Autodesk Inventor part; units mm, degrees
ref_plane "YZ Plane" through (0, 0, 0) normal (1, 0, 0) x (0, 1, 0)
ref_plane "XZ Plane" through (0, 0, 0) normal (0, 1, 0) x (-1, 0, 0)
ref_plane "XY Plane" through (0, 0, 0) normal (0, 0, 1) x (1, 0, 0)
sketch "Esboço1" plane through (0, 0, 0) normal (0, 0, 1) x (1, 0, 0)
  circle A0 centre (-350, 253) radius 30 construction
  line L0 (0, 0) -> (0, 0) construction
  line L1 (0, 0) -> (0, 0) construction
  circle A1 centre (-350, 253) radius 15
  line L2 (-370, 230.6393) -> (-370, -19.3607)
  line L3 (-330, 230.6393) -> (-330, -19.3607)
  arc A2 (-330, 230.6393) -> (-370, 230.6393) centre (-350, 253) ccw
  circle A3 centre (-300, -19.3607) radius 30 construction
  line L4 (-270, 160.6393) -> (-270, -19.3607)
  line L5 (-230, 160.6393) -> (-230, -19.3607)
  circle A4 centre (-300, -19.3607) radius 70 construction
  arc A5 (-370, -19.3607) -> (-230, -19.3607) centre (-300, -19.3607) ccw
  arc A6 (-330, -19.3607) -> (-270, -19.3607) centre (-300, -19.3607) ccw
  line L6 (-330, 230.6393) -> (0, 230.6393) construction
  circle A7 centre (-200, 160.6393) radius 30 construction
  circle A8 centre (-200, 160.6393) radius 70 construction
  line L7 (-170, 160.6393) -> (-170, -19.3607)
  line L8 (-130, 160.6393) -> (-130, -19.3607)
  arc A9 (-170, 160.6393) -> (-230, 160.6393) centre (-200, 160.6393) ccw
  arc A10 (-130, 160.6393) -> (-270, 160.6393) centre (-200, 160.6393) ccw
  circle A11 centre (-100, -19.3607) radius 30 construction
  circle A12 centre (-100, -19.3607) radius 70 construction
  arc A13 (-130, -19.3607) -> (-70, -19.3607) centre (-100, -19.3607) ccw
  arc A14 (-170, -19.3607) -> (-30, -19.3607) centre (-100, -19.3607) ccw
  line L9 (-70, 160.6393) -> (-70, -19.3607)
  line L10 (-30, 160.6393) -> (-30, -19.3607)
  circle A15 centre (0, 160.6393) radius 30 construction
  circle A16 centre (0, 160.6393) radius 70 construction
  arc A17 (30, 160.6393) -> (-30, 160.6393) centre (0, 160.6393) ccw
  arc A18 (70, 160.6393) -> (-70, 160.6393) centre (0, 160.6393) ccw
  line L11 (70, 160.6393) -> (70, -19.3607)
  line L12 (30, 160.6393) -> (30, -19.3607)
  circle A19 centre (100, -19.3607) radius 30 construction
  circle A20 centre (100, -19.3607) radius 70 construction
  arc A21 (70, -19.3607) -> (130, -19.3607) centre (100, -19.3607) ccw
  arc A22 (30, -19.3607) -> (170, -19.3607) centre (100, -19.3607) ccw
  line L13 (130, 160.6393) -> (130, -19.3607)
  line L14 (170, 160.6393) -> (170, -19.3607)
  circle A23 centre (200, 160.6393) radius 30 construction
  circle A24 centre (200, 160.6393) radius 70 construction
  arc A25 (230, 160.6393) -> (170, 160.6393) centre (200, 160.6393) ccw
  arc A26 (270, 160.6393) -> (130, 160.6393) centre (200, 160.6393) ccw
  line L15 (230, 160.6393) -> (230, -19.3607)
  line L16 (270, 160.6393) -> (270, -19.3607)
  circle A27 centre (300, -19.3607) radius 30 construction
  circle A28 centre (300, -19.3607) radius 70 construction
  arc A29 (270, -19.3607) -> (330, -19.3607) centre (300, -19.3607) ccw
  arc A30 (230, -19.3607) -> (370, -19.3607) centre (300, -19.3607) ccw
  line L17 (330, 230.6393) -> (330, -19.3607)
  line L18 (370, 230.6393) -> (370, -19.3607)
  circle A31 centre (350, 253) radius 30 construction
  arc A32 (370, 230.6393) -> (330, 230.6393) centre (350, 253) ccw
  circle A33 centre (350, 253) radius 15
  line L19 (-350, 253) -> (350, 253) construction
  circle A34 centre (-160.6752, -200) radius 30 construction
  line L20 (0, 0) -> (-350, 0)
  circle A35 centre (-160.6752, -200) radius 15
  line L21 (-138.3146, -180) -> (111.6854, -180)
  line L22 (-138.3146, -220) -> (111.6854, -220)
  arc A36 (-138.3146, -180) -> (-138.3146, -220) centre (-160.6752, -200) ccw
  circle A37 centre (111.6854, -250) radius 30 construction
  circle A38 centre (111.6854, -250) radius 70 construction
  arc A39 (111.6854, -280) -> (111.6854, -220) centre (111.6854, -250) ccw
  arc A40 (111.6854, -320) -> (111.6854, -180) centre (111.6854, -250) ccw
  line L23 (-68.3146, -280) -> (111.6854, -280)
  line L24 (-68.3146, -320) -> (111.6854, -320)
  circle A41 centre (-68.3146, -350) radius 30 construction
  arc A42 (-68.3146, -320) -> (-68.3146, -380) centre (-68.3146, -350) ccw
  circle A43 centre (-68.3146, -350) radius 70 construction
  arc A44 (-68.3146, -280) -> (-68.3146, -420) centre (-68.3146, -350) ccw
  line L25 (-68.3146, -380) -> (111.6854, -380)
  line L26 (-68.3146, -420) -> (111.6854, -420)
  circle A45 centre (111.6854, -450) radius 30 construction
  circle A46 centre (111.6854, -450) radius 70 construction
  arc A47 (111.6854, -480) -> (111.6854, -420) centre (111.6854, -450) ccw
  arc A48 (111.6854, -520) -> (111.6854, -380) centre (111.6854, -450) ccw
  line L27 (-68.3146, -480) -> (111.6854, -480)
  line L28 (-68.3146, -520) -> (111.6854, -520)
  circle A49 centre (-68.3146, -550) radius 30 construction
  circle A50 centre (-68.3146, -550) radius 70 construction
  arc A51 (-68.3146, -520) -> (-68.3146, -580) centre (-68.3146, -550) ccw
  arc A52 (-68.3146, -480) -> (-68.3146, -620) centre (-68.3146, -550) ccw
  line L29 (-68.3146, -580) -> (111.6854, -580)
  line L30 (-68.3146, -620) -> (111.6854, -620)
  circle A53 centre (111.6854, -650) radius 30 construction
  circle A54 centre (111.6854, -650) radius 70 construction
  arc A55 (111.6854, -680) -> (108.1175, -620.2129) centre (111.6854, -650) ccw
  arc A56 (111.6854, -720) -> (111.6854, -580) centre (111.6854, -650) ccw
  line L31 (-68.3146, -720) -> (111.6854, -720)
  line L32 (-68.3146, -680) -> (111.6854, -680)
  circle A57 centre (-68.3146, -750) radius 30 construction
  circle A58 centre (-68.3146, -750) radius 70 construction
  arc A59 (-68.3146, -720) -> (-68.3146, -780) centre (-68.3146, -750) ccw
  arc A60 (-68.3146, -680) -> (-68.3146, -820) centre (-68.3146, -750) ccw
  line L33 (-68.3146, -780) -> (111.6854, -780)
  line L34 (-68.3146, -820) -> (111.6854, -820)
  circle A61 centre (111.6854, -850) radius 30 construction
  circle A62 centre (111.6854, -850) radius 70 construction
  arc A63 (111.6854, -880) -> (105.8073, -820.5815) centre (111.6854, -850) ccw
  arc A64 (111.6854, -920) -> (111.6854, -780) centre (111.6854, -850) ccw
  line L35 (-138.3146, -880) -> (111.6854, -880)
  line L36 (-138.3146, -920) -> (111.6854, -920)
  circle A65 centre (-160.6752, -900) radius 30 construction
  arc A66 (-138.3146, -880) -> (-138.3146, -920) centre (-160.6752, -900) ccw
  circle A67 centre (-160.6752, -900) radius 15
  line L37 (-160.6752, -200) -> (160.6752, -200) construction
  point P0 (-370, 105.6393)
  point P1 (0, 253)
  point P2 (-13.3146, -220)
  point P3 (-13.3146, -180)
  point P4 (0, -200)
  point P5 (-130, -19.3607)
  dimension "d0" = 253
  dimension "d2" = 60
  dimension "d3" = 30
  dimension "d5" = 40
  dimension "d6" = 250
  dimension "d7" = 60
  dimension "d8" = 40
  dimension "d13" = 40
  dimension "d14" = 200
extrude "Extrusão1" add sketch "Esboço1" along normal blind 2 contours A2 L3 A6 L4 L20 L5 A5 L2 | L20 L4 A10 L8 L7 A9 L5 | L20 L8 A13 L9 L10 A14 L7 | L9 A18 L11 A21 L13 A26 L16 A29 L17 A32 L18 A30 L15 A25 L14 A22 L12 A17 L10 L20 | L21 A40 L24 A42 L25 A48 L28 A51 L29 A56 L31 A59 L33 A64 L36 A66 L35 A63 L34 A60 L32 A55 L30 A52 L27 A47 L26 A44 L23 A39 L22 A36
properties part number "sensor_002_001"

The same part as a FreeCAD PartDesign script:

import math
import FreeCAD as App
import Part
import Sketcher

V = App.Vector

doc = App.newDocument("Part")
body = doc.addObject("PartDesign::Body", "Body")
body.AllowCompound = True

# Sketch on XY plane
sketch1 = doc.addObject("Sketcher::SketchObject", "Sketch")
body.addObject(sketch1)
sketch1.AttachmentSupport = (doc.XY_Plane, [""])
sketch1.MapMode = "FlatFace"
sketch1.addGeometry([
    Part.ArcOfCircle(Part.Circle(V(-350, 253, 0), V(0, 0, 1), 30), math.radians(-48), math.radians(228)),  # 0
    Part.LineSegment(V(-370, 231, 0), V(-370, -19, 0)),  # 1
    Part.ArcOfCircle(Part.Circle(V(-300, -19, 0), V(0, 0, 1), 70), math.radians(180), math.radians(360)),  # 2
    Part.LineSegment(V(-230, -19, 0), V(-230, 161, 0)),  # 3
    Part.ArcOfCircle(Part.Circle(V(-200, 161, 0), V(0, 0, 1), 30), math.radians(0), math.radians(180)),  # 4
    Part.LineSegment(V(-170, 161, 0), V(-170, -19, 0)),  # 5
    Part.ArcOfCircle(Part.Circle(V(-100, -19, 0), V(0, 0, 1), 70), math.radians(180), math.radians(360)),  # 6
    Part.LineSegment(V(-30, -19, 0), V(-30, 161, 0)),  # 7
    Part.ArcOfCircle(Part.Circle(V(0, 161, 0), V(0, 0, 1), 30), math.radians(0), math.radians(180)),  # 8
    Part.LineSegment(V(30, 161, 0), V(30, -19, 0)),  # 9
    Part.ArcOfCircle(Part.Circle(V(100, -19, 0), V(0, 0, 1), 70), math.radians(180), math.radians(360)),  # 10
    Part.LineSegment(V(170, -19, 0), V(170, 161, 0)),  # 11
    Part.ArcOfCircle(Part.Circle(V(200, 161, 0), V(0, 0, 1), 30), math.radians(0), math.radians(180)),  # 12
    Part.LineSegment(V(230, 161, 0), V(230, -19, 0)),  # 13
    Part.ArcOfCircle(Part.Circle(V(300, -19, 0), V(0, 0, 1), 70), math.radians(180), math.radians(360)),  # 14
    Part.LineSegment(V(370, -19, 0), V(370, 231, 0)),  # 15
    Part.ArcOfCircle(Part.Circle(V(350, 253, 0), V(0, 0, 1), 30), math.radians(-48), math.radians(228)),  # 16
    Part.LineSegment(V(330, 231, 0), V(330, -19, 0)),  # 17
    Part.ArcOfCircle(Part.Circle(V(300, -19, 0), V(0, 0, 1), 30), math.radians(180), math.radians(360)),  # 18
    Part.LineSegment(V(270, -19, 0), V(270, 161, 0)),  # 19
    Part.ArcOfCircle(Part.Circle(V(200, 161, 0), V(0, 0, 1), 70), math.radians(0), math.radians(180)),  # 20
    Part.LineSegment(V(130, 161, 0), V(130, -19, 0)),  # 21
    Part.ArcOfCircle(Part.Circle(V(100, -19, 0), V(0, 0, 1), 30), math.radians(180), math.radians(360)),  # 22
    Part.LineSegment(V(70, -19, 0), V(70, 161, 0)),  # 23
    Part.ArcOfCircle(Part.Circle(V(0, 161, 0), V(0, 0, 1), 70), math.radians(0), math.radians(180)),  # 24
    Part.LineSegment(V(-70, 161, 0), V(-70, -19, 0)),  # 25
    Part.ArcOfCircle(Part.Circle(V(-100, -19, 0), V(0, 0, 1), 30), math.radians(180), math.radians(360)),  # 26
    Part.LineSegment(V(-130, -19, 0), V(-130, 161, 0)),  # 27
    Part.ArcOfCircle(Part.Circle(V(-200, 161, 0), V(0, 0, 1), 70), math.radians(0), math.radians(180)),  # 28
    Part.LineSegment(V(-270, 161, 0), V(-270, -19, 0)),  # 29
    Part.ArcOfCircle(Part.Circle(V(-300, -19, 0), V(0, 0, 1), 30), math.radians(180), math.radians(360)),  # 30
    Part.LineSegment(V(-330, -19, 0), V(-330, 231, 0)),  # 31
    Part.Circle(V(-350, 253, 0), V(0, 0, 1), 15),  # 32
    Part.Circle(V(350, 253, 0), V(0, 0, 1), 15),  # 33
    Part.LineSegment(V(112, -180, 0), V(-138, -180, 0)),  # 34
    Part.ArcOfCircle(Part.Circle(V(-161, -200, 0), V(0, 0, 1), 30), math.radians(42), math.radians(318)),  # 35
    Part.LineSegment(V(-138, -220, 0), V(112, -220, 0)),  # 36
    Part.ArcOfCircle(Part.Circle(V(112, -250, 0), V(0, 0, 1), 30), math.radians(-90), math.radians(90)),  # 37
    Part.LineSegment(V(112, -280, 0), V(-68, -280, 0)),  # 38
    Part.ArcOfCircle(Part.Circle(V(-68, -350, 0), V(0, 0, 1), 70), math.radians(90), math.radians(270)),  # 39
    Part.LineSegment(V(-68, -420, 0), V(112, -420, 0)),  # 40
    Part.ArcOfCircle(Part.Circle(V(112, -450, 0), V(0, 0, 1), 30), math.radians(-90), math.radians(90)),  # 41
    Part.LineSegment(V(112, -480, 0), V(-68, -480, 0)),  # 42
    Part.ArcOfCircle(Part.Circle(V(-68, -550, 0), V(0, 0, 1), 70), math.radians(90), math.radians(270)),  # 43
    Part.LineSegment(V(-68, -620, 0), V(112, -620, 0)),  # 44
    Part.ArcOfCircle(Part.Circle(V(112, -650, 0), V(0, 0, 1), 30), math.radians(-90), math.radians(90)),  # 45
    Part.LineSegment(V(112, -680, 0), V(-68, -680, 0)),  # 46
    Part.ArcOfCircle(Part.Circle(V(-68, -750, 0), V(0, 0, 1), 70), math.radians(90), math.radians(270)),  # 47
    Part.LineSegment(V(-68, -820, 0), V(112, -820, 0)),  # 48
    Part.ArcOfCircle(Part.Circle(V(112, -850, 0), V(0, 0, 1), 30), math.radians(-90), math.radians(90)),  # 49
    Part.LineSegment(V(112, -880, 0), V(-138, -880, 0)),  # 50
    Part.ArcOfCircle(Part.Circle(V(-161, -900, 0), V(0, 0, 1), 30), math.radians(42), math.radians(318)),  # 51
    Part.LineSegment(V(-138, -920, 0), V(112, -920, 0)),  # 52
    Part.ArcOfCircle(Part.Circle(V(112, -850, 0), V(0, 0, 1), 70), math.radians(-90), math.radians(90)),  # 53
    Part.LineSegment(V(112, -780, 0), V(-68, -780, 0)),  # 54
    Part.ArcOfCircle(Part.Circle(V(-68, -750, 0), V(0, 0, 1), 30), math.radians(90), math.radians(270)),  # 55
    Part.LineSegment(V(-68, -720, 0), V(112, -720, 0)),  # 56
    Part.ArcOfCircle(Part.Circle(V(112, -650, 0), V(0, 0, 1), 70), math.radians(-90), math.radians(90)),  # 57
    Part.LineSegment(V(112, -580, 0), V(-68, -580, 0)),  # 58
    Part.ArcOfCircle(Part.Circle(V(-68, -550, 0), V(0, 0, 1), 30), math.radians(90), math.radians(270)),  # 59
    Part.LineSegment(V(-68, -520, 0), V(112, -520, 0)),  # 60
    Part.ArcOfCircle(Part.Circle(V(112, -450, 0), V(0, 0, 1), 70), math.radians(-90), math.radians(90)),  # 61
    Part.LineSegment(V(112, -380, 0), V(-68, -380, 0)),  # 62
    Part.ArcOfCircle(Part.Circle(V(-68, -350, 0), V(0, 0, 1), 30), math.radians(90), math.radians(270)),  # 63
    Part.LineSegment(V(-68, -320, 0), V(112, -320, 0)),  # 64
    Part.ArcOfCircle(Part.Circle(V(112, -250, 0), V(0, 0, 1), 70), math.radians(-90), math.radians(90)),  # 65
    Part.Circle(V(-161, -900, 0), V(0, 0, 1), 15),  # 66
    Part.Circle(V(-161, -200, 0), V(0, 0, 1), 15),  # 67
], False)
sketch1.addConstraint([
    Sketcher.Constraint("Coincident", 0, 2, 1, 1),
    Sketcher.Constraint("Tangent", 1, 2, 2, 1),
    Sketcher.Constraint("Tangent", 2, 2, 3, 1),
    Sketcher.Constraint("Tangent", 3, 2, 4, 2),
    Sketcher.Constraint("Tangent", 4, 1, 5, 1),
    Sketcher.Constraint("Tangent", 5, 2, 6, 1),
    Sketcher.Constraint("Tangent", 6, 2, 7, 1),
    Sketcher.Constraint("Tangent", 7, 2, 8, 2),
    Sketcher.Constraint("Tangent", 8, 1, 9, 1),
    Sketcher.Constraint("Tangent", 9, 2, 10, 1),
    Sketcher.Constraint("Tangent", 10, 2, 11, 1),
    Sketcher.Constraint("Tangent", 11, 2, 12, 2),
    Sketcher.Constraint("Tangent", 12, 1, 13, 1),
    Sketcher.Constraint("Tangent", 13, 2, 14, 1),
    Sketcher.Constraint("Tangent", 14, 2, 15, 1),
    Sketcher.Constraint("Coincident", 15, 2, 16, 1),
    Sketcher.Constraint("Coincident", 16, 2, 17, 1),
    Sketcher.Constraint("Tangent", 17, 2, 18, 2),
    Sketcher.Constraint("Tangent", 18, 1, 19, 1),
    Sketcher.Constraint("Tangent", 19, 2, 20, 1),
    Sketcher.Constraint("Tangent", 20, 2, 21, 1),
    Sketcher.Constraint("Tangent", 21, 2, 22, 2),
    Sketcher.Constraint("Tangent", 22, 1, 23, 1),
    Sketcher.Constraint("Tangent", 23, 2, 24, 1),
    Sketcher.Constraint("Tangent", 24, 2, 25, 1),
    Sketcher.Constraint("Tangent", 25, 2, 26, 2),
    Sketcher.Constraint("Tangent", 26, 1, 27, 1),
    Sketcher.Constraint("Tangent", 27, 2, 28, 1),
    Sketcher.Constraint("Tangent", 28, 2, 29, 1),
    Sketcher.Constraint("Tangent", 29, 2, 30, 2),
    Sketcher.Constraint("Tangent", 30, 1, 31, 1),
    Sketcher.Constraint("Coincident", 31, 2, 0, 1),
    Sketcher.Constraint("Coincident", 34, 2, 35, 1),
    Sketcher.Constraint("Coincident", 35, 2, 36, 1),
    Sketcher.Constraint("Tangent", 36, 2, 37, 2),
    Sketcher.Constraint("Tangent", 37, 1, 38, 1),
    Sketcher.Constraint("Tangent", 38, 2, 39, 1),
    Sketcher.Constraint("Tangent", 39, 2, 40, 1),
    Sketcher.Constraint("Tangent", 40, 2, 41, 2),
    Sketcher.Constraint("Tangent", 41, 1, 42, 1),
    Sketcher.Constraint("Tangent", 42, 2, 43, 1),
    Sketcher.Constraint("Tangent", 43, 2, 44, 1),
    Sketcher.Constraint("Tangent", 44, 2, 45, 2),
    Sketcher.Constraint("Tangent", 45, 1, 46, 1),
    Sketcher.Constraint("Tangent", 46, 2, 47, 1),
    Sketcher.Constraint("Tangent", 47, 2, 48, 1),
    Sketcher.Constraint("Tangent", 48, 2, 49, 2),
    Sketcher.Constraint("Tangent", 49, 1, 50, 1),
    Sketcher.Constraint("Coincident", 50, 2, 51, 1),
    Sketcher.Constraint("Coincident", 51, 2, 52, 1),
    Sketcher.Constraint("Tangent", 52, 2, 53, 1),
    Sketcher.Constraint("Tangent", 53, 2, 54, 1),
    Sketcher.Constraint("Tangent", 54, 2, 55, 2),
    Sketcher.Constraint("Tangent", 55, 1, 56, 1),
    Sketcher.Constraint("Tangent", 56, 2, 57, 1),
    Sketcher.Constraint("Tangent", 57, 2, 58, 1),
    Sketcher.Constraint("Tangent", 58, 2, 59, 2),
    Sketcher.Constraint("Tangent", 59, 1, 60, 1),
    Sketcher.Constraint("Tangent", 60, 2, 61, 1),
    Sketcher.Constraint("Tangent", 61, 2, 62, 1),
    Sketcher.Constraint("Tangent", 62, 2, 63, 2),
    Sketcher.Constraint("Tangent", 63, 1, 64, 1),
    Sketcher.Constraint("Tangent", 64, 2, 65, 1),
    Sketcher.Constraint("Tangent", 65, 2, 34, 1),
    Sketcher.Constraint("Vertical", 1),
    Sketcher.Constraint("Vertical", 3),
    Sketcher.Constraint("Vertical", 5),
    Sketcher.Constraint("Vertical", 7),
    Sketcher.Constraint("Vertical", 9),
    Sketcher.Constraint("Vertical", 11),
    Sketcher.Constraint("Vertical", 13),
    Sketcher.Constraint("Vertical", 15),
    Sketcher.Constraint("Vertical", 17),
    Sketcher.Constraint("Vertical", 19),
    Sketcher.Constraint("Vertical", 21),
    Sketcher.Constraint("Vertical", 23),
    Sketcher.Constraint("Vertical", 25),
    Sketcher.Constraint("Vertical", 27),
    Sketcher.Constraint("Vertical", 29),
    Sketcher.Constraint("Vertical", 31),
    Sketcher.Constraint("Horizontal", 34),
    Sketcher.Constraint("Horizontal", 36),
    Sketcher.Constraint("Horizontal", 38),
    Sketcher.Constraint("Horizontal", 40),
    Sketcher.Constraint("Horizontal", 42),
    Sketcher.Constraint("Horizontal", 44),
    Sketcher.Constraint("Horizontal", 46),
    Sketcher.Constraint("Horizontal", 48),
    Sketcher.Constraint("Horizontal", 50),
    Sketcher.Constraint("Horizontal", 52),
    Sketcher.Constraint("Horizontal", 54),
    Sketcher.Constraint("Horizontal", 56),
    Sketcher.Constraint("Horizontal", 58),
    Sketcher.Constraint("Horizontal", 60),
    Sketcher.Constraint("Horizontal", 62),
    Sketcher.Constraint("Horizontal", 64),
    Sketcher.Constraint("Coincident", 18, 3, 14, 3),
    Sketcher.Constraint("Coincident", 20, 3, 12, 3),
    Sketcher.Constraint("Coincident", 22, 3, 10, 3),
    Sketcher.Constraint("Coincident", 24, 3, 8, 3),
    Sketcher.Constraint("Coincident", 26, 3, 6, 3),
    Sketcher.Constraint("Coincident", 28, 3, 4, 3),
    Sketcher.Constraint("Coincident", 30, 3, 2, 3),
    Sketcher.Constraint("Coincident", 32, 3, 0, 3),
    Sketcher.Constraint("Coincident", 33, 3, 16, 3),
    Sketcher.Constraint("Coincident", 53, 3, 49, 3),
    Sketcher.Constraint("Coincident", 55, 3, 47, 3),
    Sketcher.Constraint("Coincident", 57, 3, 45, 3),
    Sketcher.Constraint("Coincident", 59, 3, 43, 3),
    Sketcher.Constraint("Coincident", 61, 3, 41, 3),
    Sketcher.Constraint("Coincident", 63, 3, 39, 3),
    Sketcher.Constraint("Coincident", 65, 3, 37, 3),
    Sketcher.Constraint("Coincident", 66, 3, 51, 3),
    Sketcher.Constraint("Coincident", 67, 3, 35, 3),
    Sketcher.Constraint("Equal", 0, 4),
    Sketcher.Constraint("Equal", 2, 6),
    Sketcher.Constraint("Equal", 4, 8),
    Sketcher.Constraint("Equal", 6, 10),
    Sketcher.Constraint("Equal", 8, 12),
    Sketcher.Constraint("Equal", 10, 14),
    Sketcher.Constraint("Equal", 12, 16),
    Sketcher.Constraint("Equal", 16, 18),
    Sketcher.Constraint("Equal", 32, 33),
    Sketcher.Constraint("Equal", 30, 35),
    Sketcher.Constraint("Equal", 35, 37),
    Sketcher.Constraint("Equal", 28, 39),
    Sketcher.Constraint("Equal", 37, 41),
    Sketcher.Constraint("Equal", 39, 43),
    Sketcher.Constraint("Equal", 41, 45),
    Sketcher.Constraint("Equal", 43, 47),
    Sketcher.Constraint("Equal", 45, 49),
    Sketcher.Constraint("Equal", 49, 51),
    Sketcher.Constraint("Equal", 47, 53),
    Sketcher.Constraint("Equal", 33, 66),
    Sketcher.Constraint("Equal", 66, 67),
    Sketcher.Constraint("Symmetric", 6, 3, 10, 3, -2),
    Sketcher.Constraint("Symmetric", 0, 3, 16, 3, -2),
    Sketcher.Constraint("Horizontal", 2, 3, 6, 3),
    Sketcher.Constraint("Horizontal", 4, 3, 8, 3),
    Sketcher.Constraint("Horizontal", 8, 3, 12, 3),
    Sketcher.Constraint("Horizontal", 10, 3, 14, 3),
    Sketcher.Constraint("Horizontal", 15, 2, 16, 2),
    Sketcher.Constraint("Vertical", 37, 3, 41, 3),
    Sketcher.Constraint("Vertical", 39, 3, 43, 3),
    Sketcher.Constraint("Vertical", 41, 3, 45, 3),
    Sketcher.Constraint("Vertical", 43, 3, 47, 3),
    Sketcher.Constraint("Vertical", 45, 3, 49, 3),
    Sketcher.Constraint("Vertical", 35, 3, 51, 3),
    Sketcher.Constraint("Vertical", 34, 2, 35, 2),
    Sketcher.Constraint("Vertical", 35, 2, 50, 2),
    Sketcher.Constraint("Equal", 52, 1),
    Sketcher.Constraint("Equal", 64, 3),
    Sketcher.Constraint("Diameter", 32, 30.0),
    Sketcher.Constraint("Radius", 0, 30.0),
    Sketcher.Constraint("DistanceX", 34, 2, 34, 1, 250.0),
    Sketcher.Constraint("DistanceY", -1, 1, 0, 3, 253.0),
    Sketcher.Constraint("DistanceX", 4, 3, -1, 1, 200.0),
    Sketcher.Constraint("DistanceY", 35, 3, -1, 1, 200.0),
    Sketcher.Constraint("DistanceX", 38, 2, 38, 1, 180.0),
    Sketcher.Constraint("DistanceX", 35, 3, -1, 1, 160.6752),
])
pad1 = doc.addObject("PartDesign::Pad", "Pad")
body.addObject(pad1)
pad1.Profile = sketch1
pad1.Length = 2

doc.recompute()
